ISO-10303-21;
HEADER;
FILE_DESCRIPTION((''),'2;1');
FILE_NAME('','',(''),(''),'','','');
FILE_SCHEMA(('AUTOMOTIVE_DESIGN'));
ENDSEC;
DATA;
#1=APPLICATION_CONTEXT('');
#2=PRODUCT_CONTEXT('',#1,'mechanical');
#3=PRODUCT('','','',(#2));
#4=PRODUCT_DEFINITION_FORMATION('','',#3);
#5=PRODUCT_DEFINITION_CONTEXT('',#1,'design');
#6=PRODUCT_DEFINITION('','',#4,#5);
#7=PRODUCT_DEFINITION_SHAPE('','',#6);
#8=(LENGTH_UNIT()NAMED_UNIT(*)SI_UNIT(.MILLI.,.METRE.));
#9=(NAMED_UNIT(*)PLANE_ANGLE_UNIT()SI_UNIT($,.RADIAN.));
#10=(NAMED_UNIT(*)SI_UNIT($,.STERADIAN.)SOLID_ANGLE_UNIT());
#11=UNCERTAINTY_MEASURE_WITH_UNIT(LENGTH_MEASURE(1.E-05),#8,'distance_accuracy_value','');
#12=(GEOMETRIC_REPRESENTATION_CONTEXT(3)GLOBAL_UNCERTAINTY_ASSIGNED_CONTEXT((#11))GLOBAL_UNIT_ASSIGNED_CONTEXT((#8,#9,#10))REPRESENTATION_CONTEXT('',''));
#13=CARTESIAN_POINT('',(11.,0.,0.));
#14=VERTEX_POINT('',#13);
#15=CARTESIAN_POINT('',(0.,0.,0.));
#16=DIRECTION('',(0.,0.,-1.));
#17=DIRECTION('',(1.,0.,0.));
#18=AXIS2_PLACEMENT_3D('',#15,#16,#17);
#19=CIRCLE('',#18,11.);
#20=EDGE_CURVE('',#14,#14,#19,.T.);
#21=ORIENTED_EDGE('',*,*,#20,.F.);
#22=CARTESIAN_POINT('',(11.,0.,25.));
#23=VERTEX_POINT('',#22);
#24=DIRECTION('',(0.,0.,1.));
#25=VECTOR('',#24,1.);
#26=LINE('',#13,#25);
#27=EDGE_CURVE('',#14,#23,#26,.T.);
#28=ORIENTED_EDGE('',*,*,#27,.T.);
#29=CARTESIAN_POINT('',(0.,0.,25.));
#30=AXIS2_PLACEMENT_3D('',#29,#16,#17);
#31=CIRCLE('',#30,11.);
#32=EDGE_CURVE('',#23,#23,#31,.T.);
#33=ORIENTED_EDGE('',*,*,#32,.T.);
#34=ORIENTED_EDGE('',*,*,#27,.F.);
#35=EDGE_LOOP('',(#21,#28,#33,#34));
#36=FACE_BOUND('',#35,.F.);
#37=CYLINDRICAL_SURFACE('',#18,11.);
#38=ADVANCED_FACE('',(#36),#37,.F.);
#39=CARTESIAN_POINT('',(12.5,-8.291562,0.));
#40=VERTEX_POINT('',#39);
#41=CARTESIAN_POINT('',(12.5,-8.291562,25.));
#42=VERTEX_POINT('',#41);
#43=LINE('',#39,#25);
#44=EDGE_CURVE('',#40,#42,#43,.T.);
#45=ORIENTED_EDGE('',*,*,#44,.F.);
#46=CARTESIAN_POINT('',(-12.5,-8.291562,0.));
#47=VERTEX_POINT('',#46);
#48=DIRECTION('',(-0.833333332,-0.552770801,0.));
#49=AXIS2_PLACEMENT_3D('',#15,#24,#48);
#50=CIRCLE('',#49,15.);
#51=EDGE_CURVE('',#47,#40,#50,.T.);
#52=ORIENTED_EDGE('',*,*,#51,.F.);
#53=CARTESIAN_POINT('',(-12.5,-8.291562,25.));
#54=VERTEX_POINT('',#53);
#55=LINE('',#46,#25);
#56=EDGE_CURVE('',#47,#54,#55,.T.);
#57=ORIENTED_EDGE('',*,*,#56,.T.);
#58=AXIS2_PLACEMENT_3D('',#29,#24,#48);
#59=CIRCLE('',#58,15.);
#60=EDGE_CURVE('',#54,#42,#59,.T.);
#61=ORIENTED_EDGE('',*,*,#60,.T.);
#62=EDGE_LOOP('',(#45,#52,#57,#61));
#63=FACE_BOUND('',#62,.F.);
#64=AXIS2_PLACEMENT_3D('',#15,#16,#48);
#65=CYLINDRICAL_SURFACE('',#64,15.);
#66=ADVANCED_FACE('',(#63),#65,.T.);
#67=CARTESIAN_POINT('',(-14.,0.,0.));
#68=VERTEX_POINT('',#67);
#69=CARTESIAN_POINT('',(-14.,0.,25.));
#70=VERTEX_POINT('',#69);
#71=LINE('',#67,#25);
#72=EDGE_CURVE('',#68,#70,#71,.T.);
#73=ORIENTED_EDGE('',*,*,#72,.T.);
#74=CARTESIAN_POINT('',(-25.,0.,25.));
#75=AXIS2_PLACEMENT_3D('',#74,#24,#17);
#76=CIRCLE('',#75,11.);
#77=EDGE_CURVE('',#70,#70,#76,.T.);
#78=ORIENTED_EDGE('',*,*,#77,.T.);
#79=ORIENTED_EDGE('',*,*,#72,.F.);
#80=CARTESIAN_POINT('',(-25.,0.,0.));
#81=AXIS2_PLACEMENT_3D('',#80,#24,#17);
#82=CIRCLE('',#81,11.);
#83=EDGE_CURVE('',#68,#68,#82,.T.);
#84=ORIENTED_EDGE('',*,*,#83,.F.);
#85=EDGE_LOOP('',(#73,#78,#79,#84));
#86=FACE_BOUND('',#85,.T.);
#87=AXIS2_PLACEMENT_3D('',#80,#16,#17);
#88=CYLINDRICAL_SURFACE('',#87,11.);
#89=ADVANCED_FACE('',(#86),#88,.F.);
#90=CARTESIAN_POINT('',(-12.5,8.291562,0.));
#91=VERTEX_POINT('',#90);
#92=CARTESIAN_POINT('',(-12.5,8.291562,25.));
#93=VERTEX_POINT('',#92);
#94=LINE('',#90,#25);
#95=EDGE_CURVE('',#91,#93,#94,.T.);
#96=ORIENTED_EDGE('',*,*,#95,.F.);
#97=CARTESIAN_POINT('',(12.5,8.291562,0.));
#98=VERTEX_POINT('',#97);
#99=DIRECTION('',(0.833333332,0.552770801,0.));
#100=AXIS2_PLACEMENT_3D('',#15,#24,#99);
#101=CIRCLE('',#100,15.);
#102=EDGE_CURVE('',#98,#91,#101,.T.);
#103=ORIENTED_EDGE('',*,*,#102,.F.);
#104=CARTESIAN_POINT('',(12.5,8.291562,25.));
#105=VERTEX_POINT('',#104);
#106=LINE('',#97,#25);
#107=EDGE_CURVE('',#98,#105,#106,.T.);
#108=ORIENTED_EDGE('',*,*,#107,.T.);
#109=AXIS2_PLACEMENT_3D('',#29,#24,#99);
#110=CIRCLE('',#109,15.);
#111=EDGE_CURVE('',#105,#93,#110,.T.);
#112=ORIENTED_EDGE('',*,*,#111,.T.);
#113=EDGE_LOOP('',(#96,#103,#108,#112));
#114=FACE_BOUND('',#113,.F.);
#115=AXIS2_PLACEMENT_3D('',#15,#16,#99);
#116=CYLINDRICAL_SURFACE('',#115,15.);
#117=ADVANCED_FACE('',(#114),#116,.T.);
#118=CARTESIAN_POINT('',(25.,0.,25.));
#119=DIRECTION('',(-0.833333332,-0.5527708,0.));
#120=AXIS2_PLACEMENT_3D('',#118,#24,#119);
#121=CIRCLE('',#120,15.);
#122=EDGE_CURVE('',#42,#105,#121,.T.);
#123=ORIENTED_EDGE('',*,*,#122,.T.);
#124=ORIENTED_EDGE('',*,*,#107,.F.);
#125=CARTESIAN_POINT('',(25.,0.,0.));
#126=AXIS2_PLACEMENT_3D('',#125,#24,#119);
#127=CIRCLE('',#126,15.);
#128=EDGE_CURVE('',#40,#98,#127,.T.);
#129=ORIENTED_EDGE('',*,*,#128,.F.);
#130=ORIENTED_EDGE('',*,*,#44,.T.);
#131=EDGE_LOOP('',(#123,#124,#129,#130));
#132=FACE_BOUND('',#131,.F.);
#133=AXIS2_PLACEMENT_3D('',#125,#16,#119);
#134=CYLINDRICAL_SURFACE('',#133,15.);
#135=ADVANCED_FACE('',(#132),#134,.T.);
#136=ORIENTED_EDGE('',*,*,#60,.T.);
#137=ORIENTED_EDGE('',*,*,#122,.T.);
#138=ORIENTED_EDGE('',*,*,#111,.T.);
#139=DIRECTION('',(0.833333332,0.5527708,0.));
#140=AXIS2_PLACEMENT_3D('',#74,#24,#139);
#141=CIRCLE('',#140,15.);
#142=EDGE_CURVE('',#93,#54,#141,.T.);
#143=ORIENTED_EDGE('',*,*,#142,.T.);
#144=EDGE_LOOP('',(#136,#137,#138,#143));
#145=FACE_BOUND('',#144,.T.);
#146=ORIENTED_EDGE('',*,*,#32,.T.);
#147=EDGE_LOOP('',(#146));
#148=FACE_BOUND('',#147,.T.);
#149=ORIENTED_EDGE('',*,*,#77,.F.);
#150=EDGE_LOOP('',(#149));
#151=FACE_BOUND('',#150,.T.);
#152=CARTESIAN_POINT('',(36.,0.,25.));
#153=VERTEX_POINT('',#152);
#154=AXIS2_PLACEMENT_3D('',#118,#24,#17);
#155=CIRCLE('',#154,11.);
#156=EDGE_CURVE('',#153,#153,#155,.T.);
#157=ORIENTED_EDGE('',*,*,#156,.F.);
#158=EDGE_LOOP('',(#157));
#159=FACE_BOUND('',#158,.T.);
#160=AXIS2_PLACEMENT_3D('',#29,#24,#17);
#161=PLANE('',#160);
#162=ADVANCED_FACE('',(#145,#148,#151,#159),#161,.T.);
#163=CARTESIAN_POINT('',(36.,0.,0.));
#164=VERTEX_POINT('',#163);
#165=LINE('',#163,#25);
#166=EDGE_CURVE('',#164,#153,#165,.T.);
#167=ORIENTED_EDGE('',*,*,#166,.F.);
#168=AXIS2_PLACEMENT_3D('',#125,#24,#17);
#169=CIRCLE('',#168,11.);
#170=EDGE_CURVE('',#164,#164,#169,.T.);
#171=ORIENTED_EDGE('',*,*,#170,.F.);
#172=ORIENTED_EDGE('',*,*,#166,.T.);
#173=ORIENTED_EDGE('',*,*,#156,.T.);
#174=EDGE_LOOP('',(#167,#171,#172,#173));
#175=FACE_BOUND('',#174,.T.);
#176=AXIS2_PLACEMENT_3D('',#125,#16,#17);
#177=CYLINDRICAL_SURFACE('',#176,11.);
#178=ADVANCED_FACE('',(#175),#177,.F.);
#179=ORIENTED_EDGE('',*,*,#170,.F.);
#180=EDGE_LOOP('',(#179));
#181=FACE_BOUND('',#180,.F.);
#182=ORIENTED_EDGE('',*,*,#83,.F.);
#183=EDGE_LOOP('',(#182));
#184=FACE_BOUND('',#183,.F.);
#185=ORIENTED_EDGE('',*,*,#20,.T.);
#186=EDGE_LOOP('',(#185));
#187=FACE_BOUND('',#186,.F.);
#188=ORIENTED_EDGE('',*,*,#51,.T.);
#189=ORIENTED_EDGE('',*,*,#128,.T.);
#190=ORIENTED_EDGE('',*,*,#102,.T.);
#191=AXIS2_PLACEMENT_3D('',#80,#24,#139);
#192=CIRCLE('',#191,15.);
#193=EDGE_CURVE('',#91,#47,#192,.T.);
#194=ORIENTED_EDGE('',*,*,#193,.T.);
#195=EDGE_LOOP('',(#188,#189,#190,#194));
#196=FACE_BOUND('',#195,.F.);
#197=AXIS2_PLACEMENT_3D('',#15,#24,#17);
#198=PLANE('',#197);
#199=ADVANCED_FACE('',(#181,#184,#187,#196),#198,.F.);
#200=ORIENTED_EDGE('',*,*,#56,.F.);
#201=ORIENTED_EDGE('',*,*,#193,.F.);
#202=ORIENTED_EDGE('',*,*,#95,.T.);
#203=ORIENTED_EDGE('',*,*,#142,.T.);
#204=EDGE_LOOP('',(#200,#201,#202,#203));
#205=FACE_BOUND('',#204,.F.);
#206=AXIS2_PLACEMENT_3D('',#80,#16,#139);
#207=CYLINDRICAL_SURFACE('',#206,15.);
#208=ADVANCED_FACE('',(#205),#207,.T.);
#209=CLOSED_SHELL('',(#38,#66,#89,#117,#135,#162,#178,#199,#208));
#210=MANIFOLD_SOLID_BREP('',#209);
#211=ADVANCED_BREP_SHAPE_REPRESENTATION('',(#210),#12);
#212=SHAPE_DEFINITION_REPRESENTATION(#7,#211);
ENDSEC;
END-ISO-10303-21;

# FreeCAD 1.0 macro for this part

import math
import FreeCAD as App
import Part
import Sketcher
from FreeCAD import Vector

doc = App.newDocument("Part")
body = doc.addObject("PartDesign::Body", "Body")

# Sketch on XY plane
sketch1 = body.newObject("Sketcher::SketchObject", "Sketch")
sketch1.AttachmentSupport = (doc.getObject("XY_Plane"), [""])
sketch1.MapMode = "FlatFace"
sketch1.addGeometry([
    Part.ArcOfCircle(Part.Circle(Vector(-25, 0, 0), Vector(0, 0, 1), 15), math.radians(33.55731), math.radians(326.44269)),  # 0
    Part.ArcOfCircle(Part.Circle(Vector(0, 0, 0), Vector(0, 0, 1), 15), math.radians(-146.44269), math.radians(-33.55731)),  # 1
    Part.ArcOfCircle(Part.Circle(Vector(25, 0, 0), Vector(0, 0, 1), 15), math.radians(-146.44269), math.radians(146.44269)),  # 2
    Part.ArcOfCircle(Part.Circle(Vector(0, 0, 0), Vector(0, 0, 1), 15), math.radians(33.55731), math.radians(146.44269)),  # 3
    Part.Circle(Vector(-25, 0, 0), Vector(0, 0, 1), 11),  # 4
    Part.Circle(Vector(0, 0, 0), Vector(0, 0, 1), 11),  # 5
    Part.Circle(Vector(25, 0, 0), Vector(0, 0, 1), 11),  # 6
], False)
sketch1.addConstraint([
    Sketcher.Constraint("Coincident", 0, 2, 1, 1),
    Sketcher.Constraint("Coincident", 1, 2, 2, 1),
    Sketcher.Constraint("Coincident", 2, 2, 3, 1),
    Sketcher.Constraint("Coincident", 3, 2, 0, 1),
    Sketcher.Constraint("Coincident", 1, 3, -1, 1),
    Sketcher.Constraint("Coincident", 3, 3, -1, 1),
    Sketcher.Constraint("Coincident", 5, 3, -1, 1),
    Sketcher.Constraint("Coincident", 4, 3, 0, 3),
    Sketcher.Constraint("Coincident", 6, 3, 2, 3),
    Sketcher.Constraint("Equal", 0, 1),
    Sketcher.Constraint("Equal", 1, 2),
    Sketcher.Constraint("Equal", 2, 3),
    Sketcher.Constraint("Equal", 4, 5),
    Sketcher.Constraint("Equal", 5, 6),
    Sketcher.Constraint("Symmetric", 0, 3, 2, 3, -1, 1),
    Sketcher.Constraint("PointOnObject", 0, 3, -1),
    Sketcher.Constraint("Diameter", 4, 22.0),
    Sketcher.Constraint("Radius", 0, 15.0),
    Sketcher.Constraint("DistanceX", 0, 3, -1, 1, 25.0),
])
pad1 = body.newObject("PartDesign::Pad", "Pad")
pad1.Profile = sketch1
pad1.Length = 25

doc.recompute()
